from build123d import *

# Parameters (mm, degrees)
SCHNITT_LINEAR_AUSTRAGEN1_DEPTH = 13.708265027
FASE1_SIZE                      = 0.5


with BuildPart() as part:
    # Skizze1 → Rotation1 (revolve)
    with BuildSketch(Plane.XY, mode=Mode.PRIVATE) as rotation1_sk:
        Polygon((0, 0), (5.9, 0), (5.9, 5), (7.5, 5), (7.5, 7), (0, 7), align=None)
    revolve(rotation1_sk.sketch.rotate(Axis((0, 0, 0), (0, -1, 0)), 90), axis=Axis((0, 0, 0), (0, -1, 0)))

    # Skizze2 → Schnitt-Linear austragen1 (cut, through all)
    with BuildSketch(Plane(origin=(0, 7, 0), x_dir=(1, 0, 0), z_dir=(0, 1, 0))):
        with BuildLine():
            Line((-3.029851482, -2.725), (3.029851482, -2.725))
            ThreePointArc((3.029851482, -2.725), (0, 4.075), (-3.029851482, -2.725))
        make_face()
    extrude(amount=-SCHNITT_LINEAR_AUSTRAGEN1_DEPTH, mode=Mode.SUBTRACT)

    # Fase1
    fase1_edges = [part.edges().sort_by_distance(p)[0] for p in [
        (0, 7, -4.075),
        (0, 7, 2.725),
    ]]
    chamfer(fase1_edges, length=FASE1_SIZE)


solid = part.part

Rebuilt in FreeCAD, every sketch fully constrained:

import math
import FreeCAD as App
import Part
import Sketcher


def edges_at(feature, points):
    """Names of the edges that pass closest to the given points."""
    edges = feature.Shape.Edges
    near = lambda p: min(range(len(edges)), key=lambda i: edges[i].distToShape(Part.Vertex(*p))[0])
    return sorted({f"Edge{near(p) + 1}" for p in points})

doc = App.newDocument("Part")
body = doc.addObject("PartDesign::Body", "Body")

sketch1 = body.newObject("Sketcher::SketchObject", "Sketch")
sketch1.AttachmentSupport = (doc.getObject("XY_Plane"), [""])
sketch1.MapMode = "FlatFace"
sketch1.addGeometry(Part.LineSegment(App.Vector(0, 0, 0), App.Vector(5.9, 0, 0)), False)
sketch1.addGeometry(Part.LineSegment(App.Vector(5.9, 0, 0), App.Vector(5.9, 5, 0)), False)
sketch1.addGeometry(Part.LineSegment(App.Vector(5.9, 5, 0), App.Vector(7.5, 5, 0)), False)
sketch1.addGeometry(Part.LineSegment(App.Vector(7.5, 5, 0), App.Vector(7.5, 7, 0)), False)
sketch1.addGeometry(Part.LineSegment(App.Vector(7.5, 7, 0), App.Vector(0, 7, 0)), False)
sketch1.addGeometry(Part.LineSegment(App.Vector(0, 7, 0), App.Vector(0, 0, 0)), False)
sketch1.addConstraint(Sketcher.Constraint("Coincident", 0, 2, 1, 1))
sketch1.addConstraint(Sketcher.Constraint("Coincident", 1, 2, 2, 1))
sketch1.addConstraint(Sketcher.Constraint("Coincident", 2, 2, 3, 1))
sketch1.addConstraint(Sketcher.Constraint("Coincident", 3, 2, 4, 1))
sketch1.addConstraint(Sketcher.Constraint("Coincident", 4, 2, 5, 1))
sketch1.addConstraint(Sketcher.Constraint("Coincident", 5, 2, 0, 1))
sketch1.addConstraint(Sketcher.Constraint("Horizontal", 0))
sketch1.addConstraint(Sketcher.Constraint("Vertical", 1))
sketch1.addConstraint(Sketcher.Constraint("Horizontal", 2))
sketch1.addConstraint(Sketcher.Constraint("Vertical", 3))
sketch1.addConstraint(Sketcher.Constraint("Horizontal", 4))
sketch1.addConstraint(Sketcher.Constraint("Vertical", 5))
sketch1.addConstraint(Sketcher.Constraint("Coincident", 5, 2, -1, 1))
sketch1.addConstraint(Sketcher.Constraint("DistanceY", 1, 1, 1, 2, 5.0))
sketch1.addConstraint(Sketcher.Constraint("DistanceY", 3, 1, 3, 2, 2.0))
sketch1.addConstraint(Sketcher.Constraint("DistanceX", 0, 1, 0, 2, 5.9))
sketch1.addConstraint(Sketcher.Constraint("DistanceX", 2, 1, 2, 2, 1.6))
revolution = body.newObject("PartDesign::Revolution", "Revolution")
revolution.Profile = sketch1
revolution.ReferenceAxis = (sketch1, ["V_Axis"])
revolution.Angle = 360

sketch2 = body.newObject("Sketcher::SketchObject", "Sketch001")
sketch2.AttachmentSupport = (doc.getObject("XZ_Plane"), [""])
sketch2.MapMode = "FlatFace"
sketch2.AttachmentOffset = App.Placement(App.Vector(0, 0, -7), App.Rotation())
sketch2.addGeometry(Part.LineSegment(App.Vector(-3, 2.7, 0), App.Vector(3, 2.7, 0)), False)
sketch2.addGeometry(Part.ArcOfCircle(Part.Circle(App.Vector(0, 0, 0), App.Vector(0, 0, 1), 4.1), math.radians(138), math.radians(402)), False)
sketch2.addConstraint(Sketcher.Constraint("Coincident", 0, 1, 1, 1))
sketch2.addConstraint(Sketcher.Constraint("Coincident", 1, 2, 0, 2))
sketch2.addConstraint(Sketcher.Constraint("Horizontal", 0))
sketch2.addConstraint(Sketcher.Constraint("Coincident", 1, 3, -1, 1))
sketch2.addConstraint(Sketcher.Constraint("Radius", 1, 4.075))
sketch2.addConstraint(Sketcher.Constraint("DistanceY", -1, 1, 0, 1, 2.725))
pocket1 = body.newObject("PartDesign::Pocket", "Pocket")
pocket1.Profile = sketch2
pocket1.Type = "ThroughAll"
pocket1.Reversed = True
doc.recompute()

chamfer = body.newObject("PartDesign::Chamfer", "Chamfer")
chamfer.Base = (pocket1, edges_at(pocket1, [(0, 7, -4.075), (0, 7, 2.725)]))
chamfer.Size = 0.5

doc.recompute()
